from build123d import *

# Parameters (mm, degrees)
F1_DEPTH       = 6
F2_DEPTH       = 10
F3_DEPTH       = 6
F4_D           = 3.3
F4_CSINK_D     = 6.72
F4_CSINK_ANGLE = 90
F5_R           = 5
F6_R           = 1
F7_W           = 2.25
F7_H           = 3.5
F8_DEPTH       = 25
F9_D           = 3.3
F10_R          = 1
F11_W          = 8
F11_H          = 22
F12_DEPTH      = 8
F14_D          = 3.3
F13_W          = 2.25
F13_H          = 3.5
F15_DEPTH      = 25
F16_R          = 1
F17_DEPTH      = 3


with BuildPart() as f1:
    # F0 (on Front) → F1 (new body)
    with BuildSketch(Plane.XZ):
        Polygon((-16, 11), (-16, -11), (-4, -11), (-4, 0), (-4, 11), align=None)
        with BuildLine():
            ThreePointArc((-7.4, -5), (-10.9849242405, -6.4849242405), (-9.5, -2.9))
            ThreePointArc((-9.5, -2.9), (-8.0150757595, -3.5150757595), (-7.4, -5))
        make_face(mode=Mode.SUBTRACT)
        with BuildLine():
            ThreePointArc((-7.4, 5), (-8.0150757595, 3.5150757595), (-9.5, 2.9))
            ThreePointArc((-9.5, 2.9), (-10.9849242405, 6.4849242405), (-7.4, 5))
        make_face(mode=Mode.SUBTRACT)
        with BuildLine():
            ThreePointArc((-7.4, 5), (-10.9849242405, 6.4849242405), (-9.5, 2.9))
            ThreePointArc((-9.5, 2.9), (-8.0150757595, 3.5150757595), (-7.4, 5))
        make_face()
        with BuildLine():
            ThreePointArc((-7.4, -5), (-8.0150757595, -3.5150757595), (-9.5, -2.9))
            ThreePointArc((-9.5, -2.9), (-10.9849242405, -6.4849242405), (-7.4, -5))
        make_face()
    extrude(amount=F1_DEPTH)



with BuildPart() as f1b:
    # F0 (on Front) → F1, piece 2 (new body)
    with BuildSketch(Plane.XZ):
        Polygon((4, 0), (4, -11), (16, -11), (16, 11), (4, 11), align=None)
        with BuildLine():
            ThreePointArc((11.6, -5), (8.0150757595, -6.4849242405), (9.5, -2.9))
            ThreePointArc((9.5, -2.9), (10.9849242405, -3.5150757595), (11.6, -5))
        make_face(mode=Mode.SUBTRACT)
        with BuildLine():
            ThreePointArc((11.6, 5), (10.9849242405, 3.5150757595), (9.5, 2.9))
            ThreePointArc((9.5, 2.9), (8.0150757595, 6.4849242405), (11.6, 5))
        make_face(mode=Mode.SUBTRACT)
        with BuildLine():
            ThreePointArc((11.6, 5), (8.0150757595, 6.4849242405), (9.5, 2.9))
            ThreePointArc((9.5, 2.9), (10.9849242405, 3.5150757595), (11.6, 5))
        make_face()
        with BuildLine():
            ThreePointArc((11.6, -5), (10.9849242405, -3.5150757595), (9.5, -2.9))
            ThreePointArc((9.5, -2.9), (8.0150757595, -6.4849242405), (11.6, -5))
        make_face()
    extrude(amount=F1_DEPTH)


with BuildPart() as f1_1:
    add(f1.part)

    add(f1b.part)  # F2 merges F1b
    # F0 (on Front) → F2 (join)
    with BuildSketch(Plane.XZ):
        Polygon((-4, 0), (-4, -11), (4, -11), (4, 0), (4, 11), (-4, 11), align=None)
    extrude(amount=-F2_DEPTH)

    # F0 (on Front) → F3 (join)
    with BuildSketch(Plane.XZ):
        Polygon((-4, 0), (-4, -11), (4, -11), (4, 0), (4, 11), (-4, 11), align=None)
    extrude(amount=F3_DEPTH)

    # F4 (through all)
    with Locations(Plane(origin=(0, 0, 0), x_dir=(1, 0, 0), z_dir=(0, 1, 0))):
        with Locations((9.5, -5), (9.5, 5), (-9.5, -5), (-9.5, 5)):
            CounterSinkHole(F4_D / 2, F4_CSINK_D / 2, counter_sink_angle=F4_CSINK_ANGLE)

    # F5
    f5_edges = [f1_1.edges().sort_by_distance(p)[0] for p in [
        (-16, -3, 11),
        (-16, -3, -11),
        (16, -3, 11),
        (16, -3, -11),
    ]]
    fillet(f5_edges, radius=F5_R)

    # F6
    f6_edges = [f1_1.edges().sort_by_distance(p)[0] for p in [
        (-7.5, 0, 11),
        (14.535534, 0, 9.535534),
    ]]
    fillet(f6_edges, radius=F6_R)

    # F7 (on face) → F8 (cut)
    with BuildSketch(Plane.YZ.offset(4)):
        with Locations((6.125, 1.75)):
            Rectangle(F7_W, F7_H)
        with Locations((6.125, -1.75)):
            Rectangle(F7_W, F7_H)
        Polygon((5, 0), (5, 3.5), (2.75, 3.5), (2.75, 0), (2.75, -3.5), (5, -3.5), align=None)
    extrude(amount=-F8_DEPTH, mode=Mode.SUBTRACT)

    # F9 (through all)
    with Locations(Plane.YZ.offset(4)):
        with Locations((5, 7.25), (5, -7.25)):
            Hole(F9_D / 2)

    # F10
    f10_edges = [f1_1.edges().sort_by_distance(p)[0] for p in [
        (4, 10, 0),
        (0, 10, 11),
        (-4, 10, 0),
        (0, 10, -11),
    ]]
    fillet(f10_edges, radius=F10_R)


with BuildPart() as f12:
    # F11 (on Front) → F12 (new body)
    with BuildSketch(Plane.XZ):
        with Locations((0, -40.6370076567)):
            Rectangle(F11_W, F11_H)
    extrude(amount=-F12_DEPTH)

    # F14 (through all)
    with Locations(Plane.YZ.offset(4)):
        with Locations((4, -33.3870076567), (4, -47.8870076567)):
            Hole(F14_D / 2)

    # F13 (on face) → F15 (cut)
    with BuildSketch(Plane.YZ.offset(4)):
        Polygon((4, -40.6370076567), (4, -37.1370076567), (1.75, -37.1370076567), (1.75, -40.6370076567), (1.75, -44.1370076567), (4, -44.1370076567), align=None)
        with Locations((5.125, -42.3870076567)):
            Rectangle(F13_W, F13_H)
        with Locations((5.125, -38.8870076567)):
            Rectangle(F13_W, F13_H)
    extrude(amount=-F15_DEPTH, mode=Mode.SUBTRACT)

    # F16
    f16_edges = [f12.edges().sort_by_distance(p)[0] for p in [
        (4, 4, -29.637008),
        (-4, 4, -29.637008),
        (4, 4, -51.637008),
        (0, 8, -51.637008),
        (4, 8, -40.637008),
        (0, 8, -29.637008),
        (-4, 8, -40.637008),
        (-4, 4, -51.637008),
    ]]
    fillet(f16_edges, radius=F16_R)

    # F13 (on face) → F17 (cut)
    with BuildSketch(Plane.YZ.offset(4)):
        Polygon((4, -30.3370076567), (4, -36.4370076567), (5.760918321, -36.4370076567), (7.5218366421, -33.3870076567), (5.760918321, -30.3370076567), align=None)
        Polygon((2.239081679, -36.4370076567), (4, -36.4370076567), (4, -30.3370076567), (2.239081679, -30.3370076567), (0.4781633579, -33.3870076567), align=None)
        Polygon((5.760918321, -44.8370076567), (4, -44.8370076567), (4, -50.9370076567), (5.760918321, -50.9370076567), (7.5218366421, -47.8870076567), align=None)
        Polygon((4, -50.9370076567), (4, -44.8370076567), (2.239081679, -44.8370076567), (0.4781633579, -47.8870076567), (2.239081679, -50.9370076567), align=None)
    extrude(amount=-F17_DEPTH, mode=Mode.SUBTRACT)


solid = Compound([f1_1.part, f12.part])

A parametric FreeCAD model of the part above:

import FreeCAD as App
import Part
import Sketcher
Q = App.Units.Quantity


def edges_at(feature, points):
    """Names of the edges that pass closest to the given points."""
    edges = feature.Shape.Edges
    near = lambda p: min(range(len(edges)), key=lambda i: edges[i].distToShape(Part.Vertex(*p))[0])
    return sorted({f"Edge{near(p) + 1}" for p in points})


def add_polygon(sketch, points):
    """Adds a closed chain of lines whose ends are joined by coincident constraints."""
    first, n = sketch.GeometryCount, len(points)
    for a, b in zip(points, points[1:] + points[:1]):
        sketch.addGeometry(Part.LineSegment(App.Vector(*a, 0), App.Vector(*b, 0)), False)
    for i in range(n):
        sketch.addConstraint(Sketcher.Constraint("Coincident", first + i, 2, first + (i + 1) % n, 1))

doc = App.newDocument("Part")
params = doc.addObject("Spreadsheet::Sheet", "Params")
for row, (alias, value) in enumerate([
    ("sketch1_width", "12 mm"),
    ("sketch1_height", "22 mm"),
    ("pad1_length", "6 mm"),
    ("sketch2_width", "12 mm"),
    ("sketch2_height", "22 mm"),
    ("pad2_length", "6 mm"),
    ("sketch3_width", "8 mm"),
    ("sketch3_height", "22 mm"),
    ("pad3_length", "10 mm"),
    ("sketch4_width", "8 mm"),
    ("sketch4_height", "22 mm"),
    ("pad4_length", "6 mm"),
    ("sketch5_diameter", "3.3 mm"),
    ("hole_diameter", "3.3 mm"),
    ("hole_csink_diameter", "6.72 mm"),
    ("fillet_radius", "5 mm"),
    ("fillet2_radius", "1 mm"),
    ("sketch6_height", "7 mm"),
    ("sketch6_width", "4.5 mm"),
    ("pocket1_length", "25 mm"),
    ("sketch7_diameter", "3.3 mm"),
    ("hole2_diameter", "3.3 mm"),
    ("fillet3_radius", "1 mm"),
    ("sketch8_width", "8 mm"),
    ("sketch8_height", "22 mm"),
    ("pad5_length", "8 mm"),
    ("sketch9_diameter", "3.3 mm"),
    ("hole3_diameter", "3.3 mm"),
    ("sketch10_height", "7 mm"),
    ("sketch10_width", "4.5 mm"),
    ("pocket2_length", "25 mm"),
    ("fillet4_radius", "1 mm"),
    ("pocket3_length", "3 mm"),
], start=1):
    params.set(f"A{row}", alias)
    params.set(f"B{row}", "=" + value)
    params.setAlias(f"B{row}", alias)

body = doc.addObject("PartDesign::Body", "Body")

sketch1 = doc.addObject("Sketcher::SketchObject", "Sketch")
body.addObject(sketch1)
sketch1.AttachmentSupport = (doc.XZ_Plane, [""])
sketch1.MapMode = "FlatFace"
add_polygon(sketch1, [(-16, 11), (-16, -11), (-4, -11), (-4, 11)])
sketch1.addConstraint([
    Sketcher.Constraint("Vertical", 0),
    Sketcher.Constraint("Horizontal", 1),
    Sketcher.Constraint("Vertical", 2),
    Sketcher.Constraint("Horizontal", 3),
    Sketcher.Constraint("DistanceX", 1, 1, 1, 2, 12.0),
    Sketcher.Constraint("DistanceY", 0, 2, 0, 1, 22.0),
    Sketcher.Constraint("DistanceX", 0, 2, -1, 1, 16.0),
    Sketcher.Constraint("DistanceY", 0, 2, -1, 1, 11.0),
])
sketch1.setExpression("Constraints[8]", "Params.sketch1_width")
sketch1.setExpression("Constraints[9]", "Params.sketch1_height")
pad1 = doc.addObject("PartDesign::Pad", "Pad")
body.addObject(pad1)
pad1.Profile = sketch1
pad1.setExpression("Length", "Params.pad1_length")
body2 = doc.addObject("PartDesign::Body", "Body001")

sketch2 = doc.addObject("Sketcher::SketchObject", "Sketch001")
body2.addObject(sketch2)
sketch2.AttachmentSupport = (doc.getObject("XZ_Plane001"), [""])
sketch2.MapMode = "FlatFace"
add_polygon(sketch2, [(4, -11), (16, -11), (16, 11), (4, 11)])
sketch2.addConstraint([
    Sketcher.Constraint("Horizontal", 0),
    Sketcher.Constraint("Vertical", 1),
    Sketcher.Constraint("Horizontal", 2),
    Sketcher.Constraint("Vertical", 3),
    Sketcher.Constraint("DistanceX", 0, 1, 0, 2, 12.0),
    Sketcher.Constraint("DistanceY", 1, 1, 1, 2, 22.0),
    Sketcher.Constraint("DistanceX", -1, 1, 0, 2, 16.0),
    Sketcher.Constraint("DistanceY", 0, 2, -1, 1, 11.0),
])
sketch2.setExpression("Constraints[8]", "Params.sketch2_width")
sketch2.setExpression("Constraints[9]", "Params.sketch2_height")
pad2 = doc.addObject("PartDesign::Pad", "Pad001")
body2.addObject(pad2)
pad2.Profile = sketch2
pad2.setExpression("Length", "Params.pad2_length")
body.AllowCompound = True
doc.recompute()

boolean = doc.addObject("PartDesign::Boolean", "Boolean")
body.addObject(boolean)
boolean.Type = "Fuse"
boolean.addObjects([body2])

sketch3 = doc.addObject("Sketcher::SketchObject", "Sketch002")
body.addObject(sketch3)
sketch3.AttachmentSupport = (doc.XZ_Plane, [""])
sketch3.MapMode = "FlatFace"
add_polygon(sketch3, [(-4, -11), (4, -11), (4, 11), (-4, 11)])
sketch3.addConstraint([
    Sketcher.Constraint("Horizontal", 0),
    Sketcher.Constraint("Vertical", 1),
    Sketcher.Constraint("Horizontal", 2),
    Sketcher.Constraint("Vertical", 3),
    Sketcher.Constraint("Symmetric", 0, 2, 2, 2, -1, 1),
    Sketcher.Constraint("DistanceX", 0, 1, 0, 2, 8.0),
    Sketcher.Constraint("DistanceY", 1, 1, 1, 2, 22.0),
])
sketch3.setExpression("Constraints[9]", "Params.sketch3_width")
sketch3.setExpression("Constraints[10]", "Params.sketch3_height")
pad3 = doc.addObject("PartDesign::Pad", "Pad002")
body.addObject(pad3)
pad3.Profile = sketch3
pad3.setExpression("Length", "Params.pad3_length")
pad3.Reversed = True

sketch4 = doc.addObject("Sketcher::SketchObject", "Sketch003")
body.addObject(sketch4)
sketch4.AttachmentSupport = (doc.XZ_Plane, [""])
sketch4.MapMode = "FlatFace"
add_polygon(sketch4, [(-4, -11), (4, -11), (4, 11), (-4, 11)])
sketch4.addConstraint([
    Sketcher.Constraint("Horizontal", 0),
    Sketcher.Constraint("Vertical", 1),
    Sketcher.Constraint("Horizontal", 2),
    Sketcher.Constraint("Vertical", 3),
    Sketcher.Constraint("Symmetric", 0, 2, 2, 2, -1, 1),
    Sketcher.Constraint("DistanceX", 0, 1, 0, 2, 8.0),
    Sketcher.Constraint("DistanceY", 1, 1, 1, 2, 22.0),
])
sketch4.setExpression("Constraints[9]", "Params.sketch4_width")
sketch4.setExpression("Constraints[10]", "Params.sketch4_height")
pad4 = doc.addObject("PartDesign::Pad", "Pad003")
body.addObject(pad4)
pad4.Profile = sketch4
pad4.setExpression("Length", "Params.pad4_length")

sketch5 = doc.addObject("Sketcher::SketchObject", "Sketch004")
body.addObject(sketch5)
sketch5.AttachmentSupport = (doc.XZ_Plane, [""])
sketch5.MapMode = "FlatFace"
sketch5.addGeometry([
    Part.Circle(App.Vector(9.5, 5, 0), App.Vector(0, 0, 1), 1.6),
    Part.Circle(App.Vector(9.5, -5, 0), App.Vector(0, 0, 1), 1.6),
    Part.Circle(App.Vector(-9.5, 5, 0), App.Vector(0, 0, 1), 1.6),
    Part.Circle(App.Vector(-9.5, -5, 0), App.Vector(0, 0, 1), 1.6),
], False)
sketch5.addConstraint([
    Sketcher.Constraint("Equal", 0, 1),
    Sketcher.Constraint("Equal", 1, 2),
    Sketcher.Constraint("Equal", 2, 3),
    Sketcher.Constraint("Symmetric", 1, 3, 2, 3, -1, 1),
    Sketcher.Constraint("Symmetric", 0, 3, 3, 3, -1, 1),
    Sketcher.Constraint("Symmetric", 0, 3, 2, 3, -2),
    Sketcher.Constraint("Diameter", 0, 3.3),
    Sketcher.Constraint("DistanceY", -1, 1, 0, 3, 5.0),
    Sketcher.Constraint("DistanceX", 2, 3, 0, 3, 19.0),
])
sketch5.setExpression("Constraints[6]", "Params.sketch5_diameter")
doc.recompute()
hole = doc.addObject("PartDesign::Hole", "Hole")
body.addObject(hole)
hole.Profile = sketch5
hole.ThreadType = "None"
hole.setExpression("Diameter", "Params.hole_diameter")
hole.DepthType = "ThroughAll"
hole.HoleCutType = "Countersink"
hole.setExpression("HoleCutDiameter", "Params.hole_csink_diameter")
hole.HoleCutCountersinkAngle = 90
hole.Reversed = True
doc.recompute()

fillet = doc.addObject("PartDesign::Fillet", "Fillet")
body.addObject(fillet)
fillet.Base = (hole, edges_at(hole, [
    (-16, -3, 11),
    (-16, -3, -11),
    (16, -3, 11),
    (16, -3, -11),
]))
fillet.setExpression("Radius", "Params.fillet_radius")
doc.recompute()

fillet2 = doc.addObject("PartDesign::Fillet", "Fillet001")
body.addObject(fillet2)
fillet2.Base = (fillet, edges_at(fillet, [(-7.5, 0, 11), (14.536, 0, 9.536)]))
fillet2.setExpression("Radius", "Params.fillet2_radius")

sketch6 = doc.addObject("Sketcher::SketchObject", "Sketch005")
body.addObject(sketch6)
sketch6.AttachmentSupport = (doc.YZ_Plane, [""])
sketch6.MapMode = "FlatFace"
sketch6.AttachmentOffset = App.Placement(App.Vector(0, 0, 4), App.Rotation())
add_polygon(sketch6, [(7.2, -3.5), (7.2, 3.5), (2.8, 3.5), (2.8, -3.5)])
sketch6.addConstraint([
    Sketcher.Constraint("Vertical", 0),
    Sketcher.Constraint("Horizontal", 1),
    Sketcher.Constraint("Vertical", 2),
    Sketcher.Constraint("Horizontal", 3),
    Sketcher.Constraint("DistanceY", 0, 1, 0, 2, 7.0),
    Sketcher.Constraint("DistanceX", 1, 2, 1, 1, 4.5),
    Sketcher.Constraint("DistanceY", -1, 1, 0, 2, 3.5),
    Sketcher.Constraint("DistanceX", -1, 1, 0, 2, 7.25),
])
sketch6.setExpression("Constraints[8]", "Params.sketch6_height")
sketch6.setExpression("Constraints[9]", "Params.sketch6_width")
pocket1 = doc.addObject("PartDesign::Pocket", "Pocket")
body.addObject(pocket1)
pocket1.Profile = sketch6
pocket1.setExpression("Length", "Params.pocket1_length")

sketch7 = doc.addObject("Sketcher::SketchObject", "Sketch006")
body.addObject(sketch7)
sketch7.AttachmentSupport = (doc.YZ_Plane, [""])
sketch7.MapMode = "FlatFace"
sketch7.AttachmentOffset = App.Placement(App.Vector(0, 0, 4), App.Rotation())
sketch7.addGeometry([
    Part.Circle(App.Vector(5, 7.2, 0), App.Vector(0, 0, 1), 1.6),
    Part.Circle(App.Vector(5, -7.2, 0), App.Vector(0, 0, 1), 1.6),
], False)
sketch7.addConstraint([
    Sketcher.Constraint("Equal", 0, 1),
    Sketcher.Constraint("Symmetric", 0, 3, 1, 3, -1),
    Sketcher.Constraint("Diameter", 0, 3.3),
    Sketcher.Constraint("DistanceX", -1, 1, 0, 3, 5.0),
    Sketcher.Constraint("DistanceY", 1, 3, 0, 3, 14.5),
])
sketch7.setExpression("Constraints[2]", "Params.sketch7_diameter")
doc.recompute()
hole2 = doc.addObject("PartDesign::Hole", "Hole001")
body.addObject(hole2)
hole2.Profile = sketch7
hole2.ThreadType = "None"
hole2.setExpression("Diameter", "Params.hole2_diameter")
hole2.DepthType = "ThroughAll"
doc.recompute()

fillet3 = doc.addObject("PartDesign::Fillet", "Fillet002")
body.addObject(fillet3)
fillet3.Base = (hole2, edges_at(hole2, [
    (4, 10, 0),
    (0, 10, 11),
    (-4, 10, 0),
    (0, 10, -11),
]))
fillet3.setExpression("Radius", "Params.fillet3_radius")
body3 = doc.addObject("PartDesign::Body", "Body002")

sketch8 = doc.addObject("Sketcher::SketchObject", "Sketch007")
body3.addObject(sketch8)
sketch8.AttachmentSupport = (doc.getObject("XZ_Plane002"), [""])
sketch8.MapMode = "FlatFace"
add_polygon(sketch8, [(-4, -30), (-4, -52), (4, -52), (4, -30)])
sketch8.addConstraint([
    Sketcher.Constraint("Vertical", 0),
    Sketcher.Constraint("Horizontal", 1),
    Sketcher.Constraint("Vertical", 2),
    Sketcher.Constraint("Horizontal", 3),
    Sketcher.Constraint("DistanceX", 1, 1, 1, 2, 8.0),
    Sketcher.Constraint("DistanceY", 0, 2, 0, 1, 22.0),
    Sketcher.Constraint("DistanceX", 0, 2, -1, 1, 4.0),
    Sketcher.Constraint("DistanceY", 0, 2, -1, 1, 51.637008),
])
sketch8.setExpression("Constraints[8]", "Params.sketch8_width")
sketch8.setExpression("Constraints[9]", "Params.sketch8_height")
pad5 = doc.addObject("PartDesign::Pad", "Pad004")
body3.addObject(pad5)
pad5.Profile = sketch8
pad5.setExpression("Length", "Params.pad5_length")
pad5.Reversed = True

sketch9 = doc.addObject("Sketcher::SketchObject", "Sketch008")
body3.addObject(sketch9)
sketch9.AttachmentSupport = (doc.getObject("YZ_Plane002"), [""])
sketch9.MapMode = "FlatFace"
sketch9.AttachmentOffset = App.Placement(App.Vector(0, 0, 4), App.Rotation())
sketch9.addGeometry([
    Part.Circle(App.Vector(4, -33.4, 0), App.Vector(0, 0, 1), 1.6),
    Part.Circle(App.Vector(4, -47.9, 0), App.Vector(0, 0, 1), 1.6),
], False)
sketch9.addConstraint([
    Sketcher.Constraint("Equal", 0, 1),
    Sketcher.Constraint("Vertical", 0, 3, 1, 3),
    Sketcher.Constraint("Diameter", 0, 3.3),
    Sketcher.Constraint("DistanceX", -1, 1, 0, 3, 4.0),
    Sketcher.Constraint("DistanceY", 1, 3, 0, 3, 14.5),
    Sketcher.Constraint("DistanceY", 0, 3, -1, 1, 33.387008),
])
sketch9.setExpression("Constraints[2]", "Params.sketch9_diameter")
doc.recompute()
hole3 = doc.addObject("PartDesign::Hole", "Hole002")
body3.addObject(hole3)
hole3.Profile = sketch9
hole3.ThreadType = "None"
hole3.setExpression("Diameter", "Params.hole3_diameter")
hole3.DepthType = "ThroughAll"

sketch10 = doc.addObject("Sketcher::SketchObject", "Sketch009")
body3.addObject(sketch10)
sketch10.AttachmentSupport = (doc.getObject("YZ_Plane002"), [""])
sketch10.MapMode = "FlatFace"
sketch10.AttachmentOffset = App.Placement(App.Vector(0, 0, 4), App.Rotation())
add_polygon(sketch10, [(1.8, -37.1), (1.8, -44.1), (6.2, -44.1), (6.2, -37.1)])
sketch10.addConstraint([
    Sketcher.Constraint("Vertical", 0),
    Sketcher.Constraint("Horizontal", 1),
    Sketcher.Constraint("Vertical", 2),
    Sketcher.Constraint("Horizontal", 3),
    Sketcher.Constraint("DistanceY", 0, 2, 0, 1, 7.0),
    Sketcher.Constraint("DistanceX", 1, 1, 1, 2, 4.5),
    Sketcher.Constraint("DistanceX", -1, 1, 0, 2, 1.75),
    Sketcher.Constraint("DistanceY", 0, 2, -1, 1, 44.137008),
])
sketch10.setExpression("Constraints[8]", "Params.sketch10_height")
sketch10.setExpression("Constraints[9]", "Params.sketch10_width")
pocket2 = doc.addObject("PartDesign::Pocket", "Pocket001")
body3.addObject(pocket2)
pocket2.Profile = sketch10
pocket2.setExpression("Length", "Params.pocket2_length")
doc.recompute()

fillet4 = doc.addObject("PartDesign::Fillet", "Fillet003")
body3.addObject(fillet4)
fillet4.Base = (pocket2, edges_at(pocket2, [
    (4, 4, -29.637),
    (-4, 4, -29.637),
    (4, 4, -51.637),
    (0, 8, -51.637),
    (4, 8, -40.637),
    (0, 8, -29.637),
    (-4, 8, -40.637),
    (-4, 4, -51.637),
]))
fillet4.setExpression("Radius", "Params.fillet4_radius")

sketch11 = doc.addObject("Sketcher::SketchObject", "Sketch010")
body3.addObject(sketch11)
sketch11.AttachmentSupport = (doc.getObject("YZ_Plane002"), [""])
sketch11.MapMode = "FlatFace"
sketch11.AttachmentOffset = App.Placement(App.Vector(0, 0, 4), App.Rotation())
add_polygon(sketch11, [(5.8, -36.4), (7.5, -33.4), (5.8, -30.3), (2.2, -30.3), (0.5, -33.4), (2.2, -36.4)])
add_polygon(sketch11, [(5.8, -44.8), (2.2, -44.8), (0.5, -47.9), (2.2, -50.9), (5.8, -50.9), (7.5, -47.9)])
sketch11.addConstraint([
    Sketcher.Constraint("Horizontal", 2),
    Sketcher.Constraint("Horizontal", 5),
    Sketcher.Constraint("Horizontal", 6),
    Sketcher.Constraint("Horizontal", 9),
    Sketcher.Constraint("Parallel", 0, 3),
    Sketcher.Constraint("Parallel", 1, 4),
    Sketcher.Constraint("Parallel", 3, 7),
    Sketcher.Constraint("Parallel", 4, 8),
    Sketcher.Constraint("Parallel", 7, 10),
    Sketcher.Constraint("Parallel", 8, 11),
    Sketcher.Constraint("Horizontal", 0, 2, 3, 2),
    Sketcher.Constraint("Horizontal", 7, 2, 10, 2),
    Sketcher.Constraint("Vertical", 2, 2, 4, 2),
    Sketcher.Constraint("Vertical", 1, 2, 5, 2),
    Sketcher.Constraint("Vertical", 4, 2, 6, 2),
    Sketcher.Constraint("Vertical", 3, 2, 7, 2),
    Sketcher.Constraint("Vertical", 6, 2, 8, 2),
    Sketcher.Constraint("Vertical", 5, 2, 9, 2),
    Sketcher.Constraint("Angle", 0, Q("60 deg")),
    Sketcher.Constraint("DistanceY", 4, 2, 2, 2, 6.1),
    Sketcher.Constraint("DistanceY", 6, 2, 4, 2, 8.4),
    Sketcher.Constraint("DistanceX", 2, 2, 2, 1, 3.521837),
    Sketcher.Constraint("DistanceX", -1, 1, 1, 2, 5.760918),
    Sketcher.Constraint("DistanceY", 0, 2, -1, 1, 33.387008),
])
pocket3 = doc.addObject("PartDesign::Pocket", "Pocket002")
body3.addObject(pocket3)
pocket3.Profile = sketch11
pocket3.setExpression("Length", "Params.pocket3_length")

doc.recompute()
